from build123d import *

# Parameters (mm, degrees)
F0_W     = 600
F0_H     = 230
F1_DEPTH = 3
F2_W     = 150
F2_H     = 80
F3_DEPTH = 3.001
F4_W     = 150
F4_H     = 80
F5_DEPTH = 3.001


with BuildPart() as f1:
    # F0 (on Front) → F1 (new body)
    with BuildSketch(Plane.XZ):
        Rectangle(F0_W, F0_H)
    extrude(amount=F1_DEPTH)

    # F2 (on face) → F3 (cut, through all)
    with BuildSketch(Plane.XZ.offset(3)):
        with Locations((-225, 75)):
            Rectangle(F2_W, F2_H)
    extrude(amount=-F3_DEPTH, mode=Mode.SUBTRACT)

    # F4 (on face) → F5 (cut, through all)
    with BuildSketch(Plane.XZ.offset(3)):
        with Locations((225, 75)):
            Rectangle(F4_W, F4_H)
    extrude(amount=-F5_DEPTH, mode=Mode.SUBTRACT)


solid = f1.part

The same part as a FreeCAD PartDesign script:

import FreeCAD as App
import Part
import Sketcher

doc = App.newDocument("Part")
body = doc.addObject("PartDesign::Body", "Body")

# Sketch on XZ plane
sketch1 = body.newObject("Sketcher::SketchObject", "Sketch")
sketch1.AttachmentSupport = (doc.getObject("XZ_Plane"), [""])
sketch1.MapMode = "FlatFace"
sketch1.addGeometry([
    Part.LineSegment(App.Vector(-300, 115, 0), App.Vector(-300, -115, 0)),
    Part.LineSegment(App.Vector(-300, -115, 0), App.Vector(300, -115, 0)),
    Part.LineSegment(App.Vector(300, -115, 0), App.Vector(300, 115, 0)),
    Part.LineSegment(App.Vector(300, 115, 0), App.Vector(-300, 115, 0)),
], False)
sketch1.addConstraint([
    Sketcher.Constraint("Coincident", 0, 2, 1, 1),
    Sketcher.Constraint("Coincident", 1, 2, 2, 1),
    Sketcher.Constraint("Coincident", 2, 2, 3, 1),
    Sketcher.Constraint("Coincident", 3, 2, 0, 1),
    Sketcher.Constraint("Vertical", 0),
    Sketcher.Constraint("Horizontal", 1),
    Sketcher.Constraint("Vertical", 2),
    Sketcher.Constraint("Horizontal", 3),
    Sketcher.Constraint("Symmetric", 0, 2, 2, 2, -1, 1),
    Sketcher.Constraint("DistanceX", 1, 1, 1, 2, 600.0),
    Sketcher.Constraint("DistanceY", 0, 2, 0, 1, 230.0),
])
pad1 = body.newObject("PartDesign::Pad", "Pad")
pad1.Profile = sketch1
pad1.Length = 3

# Sketch on XZ plane
sketch2 = body.newObject("Sketcher::SketchObject", "Sketch001")
sketch2.AttachmentSupport = (doc.getObject("XZ_Plane"), [""])
sketch2.MapMode = "FlatFace"
sketch2.AttachmentOffset = App.Placement(App.Vector(0, 0, 3), App.Rotation())
sketch2.addGeometry([
    Part.LineSegment(App.Vector(-300, 115, 0), App.Vector(-300, 35, 0)),
    Part.LineSegment(App.Vector(-300, 35, 0), App.Vector(-150, 35, 0)),
    Part.LineSegment(App.Vector(-150, 35, 0), App.Vector(-150, 115, 0)),
    Part.LineSegment(App.Vector(-150, 115, 0), App.Vector(-300, 115, 0)),
], False)
sketch2.addConstraint([
    Sketcher.Constraint("Coincident", 0, 2, 1, 1),
    Sketcher.Constraint("Coincident", 1, 2, 2, 1),
    Sketcher.Constraint("Coincident", 2, 2, 3, 1),
    Sketcher.Constraint("Coincident", 3, 2, 0, 1),
    Sketcher.Constraint("Vertical", 0),
    Sketcher.Constraint("Horizontal", 1),
    Sketcher.Constraint("Vertical", 2),
    Sketcher.Constraint("Horizontal", 3),
    Sketcher.Constraint("DistanceX", 1, 1, 1, 2, 150.0),
    Sketcher.Constraint("DistanceY", 0, 2, 0, 1, 80.0),
    Sketcher.Constraint("DistanceX", 0, 2, -1, 1, 300.0),
    Sketcher.Constraint("DistanceY", -1, 1, 0, 2, 35.0),
])
pocket1 = body.newObject("PartDesign::Pocket", "Pocket")
pocket1.Profile = sketch2
pocket1.Type = "ThroughAll"

# Sketch on XZ plane
sketch3 = body.newObject("Sketcher::SketchObject", "Sketch002")
sketch3.AttachmentSupport = (doc.getObject("XZ_Plane"), [""])
sketch3.MapMode = "FlatFace"
sketch3.AttachmentOffset = App.Placement(App.Vector(0, 0, 3), App.Rotation())
sketch3.addGeometry([
    Part.LineSegment(App.Vector(150, 115, 0), App.Vector(150, 35, 0)),
    Part.LineSegment(App.Vector(150, 35, 0), App.Vector(300, 35, 0)),
    Part.LineSegment(App.Vector(300, 35, 0), App.Vector(300, 115, 0)),
    Part.LineSegment(App.Vector(300, 115, 0), App.Vector(150, 115, 0)),
], False)
sketch3.addConstraint([
    Sketcher.Constraint("Coincident", 0, 2, 1, 1),
    Sketcher.Constraint("Coincident", 1, 2, 2, 1),
    Sketcher.Constraint("Coincident", 2, 2, 3, 1),
    Sketcher.Constraint("Coincident", 3, 2, 0, 1),
    Sketcher.Constraint("Vertical", 0),
    Sketcher.Constraint("Horizontal", 1),
    Sketcher.Constraint("Vertical", 2),
    Sketcher.Constraint("Horizontal", 3),
    Sketcher.Constraint("DistanceX", 1, 1, 1, 2, 150.0),
    Sketcher.Constraint("DistanceY", 0, 2, 0, 1, 80.0),
    Sketcher.Constraint("DistanceX", -1, 1, 0, 2, 150.0),
    Sketcher.Constraint("DistanceY", -1, 1, 0, 2, 35.0),
])
pocket2 = body.newObject("PartDesign::Pocket", "Pocket001")
pocket2.Profile = sketch3
pocket2.Type = "ThroughAll"

doc.recompute()
